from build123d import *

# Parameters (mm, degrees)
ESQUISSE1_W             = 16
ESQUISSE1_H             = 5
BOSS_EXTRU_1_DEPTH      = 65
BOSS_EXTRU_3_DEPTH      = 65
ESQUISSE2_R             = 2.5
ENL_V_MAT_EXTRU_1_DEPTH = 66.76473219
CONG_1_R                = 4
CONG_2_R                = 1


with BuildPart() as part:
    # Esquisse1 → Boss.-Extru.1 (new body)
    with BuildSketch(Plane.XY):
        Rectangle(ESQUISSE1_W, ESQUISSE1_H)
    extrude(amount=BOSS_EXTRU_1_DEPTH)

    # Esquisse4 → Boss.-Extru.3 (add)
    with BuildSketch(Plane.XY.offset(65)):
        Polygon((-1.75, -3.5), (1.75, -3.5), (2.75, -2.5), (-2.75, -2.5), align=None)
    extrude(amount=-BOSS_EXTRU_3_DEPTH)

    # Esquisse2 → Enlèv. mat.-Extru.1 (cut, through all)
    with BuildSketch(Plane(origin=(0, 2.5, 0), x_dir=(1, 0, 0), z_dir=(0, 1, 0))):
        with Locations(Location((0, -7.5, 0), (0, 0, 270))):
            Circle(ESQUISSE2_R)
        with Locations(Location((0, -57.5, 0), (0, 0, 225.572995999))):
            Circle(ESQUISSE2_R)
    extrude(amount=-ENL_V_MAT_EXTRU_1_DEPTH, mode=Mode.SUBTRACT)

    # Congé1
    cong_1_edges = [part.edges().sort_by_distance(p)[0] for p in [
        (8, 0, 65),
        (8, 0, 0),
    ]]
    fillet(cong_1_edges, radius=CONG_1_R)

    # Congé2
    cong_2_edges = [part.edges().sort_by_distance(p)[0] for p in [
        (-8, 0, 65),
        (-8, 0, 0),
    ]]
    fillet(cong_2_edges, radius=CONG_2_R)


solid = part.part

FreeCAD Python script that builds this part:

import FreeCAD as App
import Part
import Sketcher
from FreeCAD import Vector
Q = App.Units.Quantity


def edges_at(feature, points):
    """Names of the edges that pass closest to the given points."""
    edges = feature.Shape.Edges
    near = lambda p: min(range(len(edges)), key=lambda i: edges[i].distToShape(Part.Vertex(*p))[0])
    return sorted({f"Edge{near(p) + 1}" for p in points})

doc = App.newDocument("Part")
params = doc.addObject("Spreadsheet::Sheet", "Params")
for row, (alias, value) in enumerate([
    ("sketch1_width", "16 mm"),
    ("sketch1_height", "5 mm"),
    ("pad1_length", "65 mm"),
    ("sketch2_width", "3.5 mm"),
    ("sketch2_width2", "5.5 mm"),
    ("pad2_length", "65 mm"),
    ("sketch3_diameter", "5 mm"),
    ("fillet_radius", "4 mm"),
    ("fillet2_radius", "1 mm"),
], start=1):
    params.set(f"A{row}", alias)
    params.set(f"B{row}", "=" + value)
    params.setAlias(f"B{row}", alias)

body = doc.addObject("PartDesign::Body", "Body")

sketch1 = body.newObject("Sketcher::SketchObject", "Sketch")
sketch1.AttachmentSupport = (doc.getObject("XY_Plane"), [""])
sketch1.MapMode = "FlatFace"
sketch1.addGeometry(Part.LineSegment(Vector(-8, 2, 0), Vector(-8, -2, 0)), False)
sketch1.addGeometry(Part.LineSegment(Vector(-8, -2, 0), Vector(8, -2, 0)), False)
sketch1.addGeometry(Part.LineSegment(Vector(8, -2, 0), Vector(8, 2, 0)), False)
sketch1.addGeometry(Part.LineSegment(Vector(8, 2, 0), Vector(-8, 2, 0)), False)
sketch1.addConstraint(Sketcher.Constraint("Coincident", 0, 2, 1, 1))
sketch1.addConstraint(Sketcher.Constraint("Coincident", 1, 2, 2, 1))
sketch1.addConstraint(Sketcher.Constraint("Coincident", 2, 2, 3, 1))
sketch1.addConstraint(Sketcher.Constraint("Coincident", 3, 2, 0, 1))
sketch1.addConstraint(Sketcher.Constraint("Vertical", 0))
sketch1.addConstraint(Sketcher.Constraint("Horizontal", 1))
sketch1.addConstraint(Sketcher.Constraint("Vertical", 2))
sketch1.addConstraint(Sketcher.Constraint("Horizontal", 3))
sketch1.addConstraint(Sketcher.Constraint("Symmetric", 0, 2, 2, 2, -1, 1))
sketch1.addConstraint(Sketcher.Constraint("DistanceX", 1, 1, 1, 2, Q("16 mm")))
sketch1.addConstraint(Sketcher.Constraint("DistanceY", 0, 2, 0, 1, Q("5 mm")))
sketch1.setExpression("Constraints[9]", "Params.sketch1_width")
sketch1.setExpression("Constraints[10]", "Params.sketch1_height")
pad1 = body.newObject("PartDesign::Pad", "Pad")
pad1.Profile = sketch1
pad1.setExpression("Length", "Params.pad1_length")

sketch2 = body.newObject("Sketcher::SketchObject", "Sketch001")
sketch2.AttachmentSupport = (doc.getObject("XY_Plane"), [""])
sketch2.MapMode = "FlatFace"
sketch2.AttachmentOffset = App.Placement(Vector(0, 0, 65), App.Rotation())
sketch2.addGeometry(Part.LineSegment(Vector(-1.8, -3.5, 0), Vector(1.8, -3.5, 0)), False)
sketch2.addGeometry(Part.LineSegment(Vector(1.8, -3.5, 0), Vector(2.8, -2.5, 0)), False)
sketch2.addGeometry(Part.LineSegment(Vector(2.8, -2.5, 0), Vector(-2.8, -2.5, 0)), False)
sketch2.addGeometry(Part.LineSegment(Vector(-2.8, -2.5, 0), Vector(-1.8, -3.5, 0)), False)
sketch2.addConstraint(Sketcher.Constraint("Coincident", 0, 2, 1, 1))
sketch2.addConstraint(Sketcher.Constraint("Coincident", 1, 2, 2, 1))
sketch2.addConstraint(Sketcher.Constraint("Coincident", 2, 2, 3, 1))
sketch2.addConstraint(Sketcher.Constraint("Coincident", 3, 2, 0, 1))
sketch2.addConstraint(Sketcher.Constraint("Horizontal", 0))
sketch2.addConstraint(Sketcher.Constraint("Horizontal", 2))
sketch2.addConstraint(Sketcher.Constraint("Perpendicular", 1, 3))
sketch2.addConstraint(Sketcher.Constraint("Equal", 1, 3))
sketch2.addConstraint(Sketcher.Constraint("DistanceX", 0, 1, 0, 2, Q("3.5 mm")))
sketch2.addConstraint(Sketcher.Constraint("DistanceX", 2, 2, 2, 1, Q("5.5 mm")))
sketch2.addConstraint(Sketcher.Constraint("DistanceY", 0, 2, -1, 1, Q("3.5 mm")))
sketch2.addConstraint(Sketcher.Constraint("DistanceX", -1, 1, 0, 2, Q("1.75 mm")))
sketch2.setExpression("Constraints[8]", "Params.sketch2_width")
sketch2.setExpression("Constraints[9]", "Params.sketch2_width2")
pad2 = body.newObject("PartDesign::Pad", "Pad001")
pad2.Profile = sketch2
pad2.setExpression("Length", "Params.pad2_length")
pad2.Reversed = True

sketch3 = body.newObject("Sketcher::SketchObject", "Sketch002")
sketch3.AttachmentSupport = (doc.getObject("XZ_Plane"), [""])
sketch3.MapMode = "FlatFace"
sketch3.AttachmentOffset = App.Placement(Vector(0, 0, -2.5), App.Rotation())
sketch3.addGeometry(Part.Circle(Vector(0, 7.5, 0), Vector(0, 0, 1), 2.5), False)
sketch3.addGeometry(Part.Circle(Vector(0, 57.5, 0), Vector(0, 0, 1), 2.5), False)
sketch3.addConstraint(Sketcher.Constraint("Equal", 0, 1))
sketch3.addConstraint(Sketcher.Constraint("PointOnObject", 0, 3, -2))
sketch3.addConstraint(Sketcher.Constraint("PointOnObject", 1, 3, -2))
sketch3.addConstraint(Sketcher.Constraint("Diameter", 0, Q("5 mm")))
sketch3.addConstraint(Sketcher.Constraint("DistanceY", 0, 3, 1, 3, Q("50 mm")))
sketch3.addConstraint(Sketcher.Constraint("DistanceY", -1, 1, 0, 3, Q("7.5 mm")))
sketch3.setExpression("Constraints[3]", "Params.sketch3_diameter")
pocket1 = body.newObject("PartDesign::Pocket", "Pocket")
pocket1.Profile = sketch3
pocket1.Type = "ThroughAll"
pocket1.Reversed = True
doc.recompute()

fillet = body.newObject("PartDesign::Fillet", "Fillet")
fillet.Base = (pocket1, edges_at(pocket1, [(8, 0, 65), (8, 0, 0)]))
fillet.setExpression("Radius", "Params.fillet_radius")
doc.recompute()

fillet2 = body.newObject("PartDesign::Fillet", "Fillet001")
fillet2.Base = (fillet, edges_at(fillet, [(-8, 0, 65), (-8, 0, 0)]))
fillet2.setExpression("Radius", "Params.fillet2_radius")

doc.recompute()
